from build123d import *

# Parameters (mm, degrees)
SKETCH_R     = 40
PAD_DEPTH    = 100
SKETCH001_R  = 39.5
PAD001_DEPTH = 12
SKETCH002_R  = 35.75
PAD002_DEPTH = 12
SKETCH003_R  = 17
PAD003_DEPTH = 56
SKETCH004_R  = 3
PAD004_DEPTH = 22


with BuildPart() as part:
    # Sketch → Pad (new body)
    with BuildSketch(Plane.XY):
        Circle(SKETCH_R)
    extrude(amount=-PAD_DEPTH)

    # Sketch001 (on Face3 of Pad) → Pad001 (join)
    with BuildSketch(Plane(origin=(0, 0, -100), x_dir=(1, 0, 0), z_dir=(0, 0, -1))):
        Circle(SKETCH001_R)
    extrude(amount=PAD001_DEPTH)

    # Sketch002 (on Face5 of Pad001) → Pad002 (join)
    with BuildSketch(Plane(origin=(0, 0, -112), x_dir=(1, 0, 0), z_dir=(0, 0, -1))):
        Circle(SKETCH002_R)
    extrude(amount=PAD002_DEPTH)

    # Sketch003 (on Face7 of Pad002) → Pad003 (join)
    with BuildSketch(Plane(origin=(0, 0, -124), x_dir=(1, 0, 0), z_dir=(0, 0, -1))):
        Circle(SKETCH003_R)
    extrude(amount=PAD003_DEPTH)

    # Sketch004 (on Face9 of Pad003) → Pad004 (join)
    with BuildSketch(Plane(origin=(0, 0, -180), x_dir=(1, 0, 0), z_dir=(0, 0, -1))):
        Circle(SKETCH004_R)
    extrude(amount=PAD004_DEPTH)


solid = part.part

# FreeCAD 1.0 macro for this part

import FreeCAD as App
import Part
import Sketcher

V = App.Vector

doc = App.newDocument("Part")
body = doc.addObject("PartDesign::Body", "Body")

sketch1 = body.newObject("Sketcher::SketchObject", "Sketch")
sketch1.AttachmentSupport = (doc.getObject("XY_Plane"), [""])
sketch1.MapMode = "FlatFace"
sketch1.addGeometry(Part.Circle(V(0, 0, 0), V(0, 0, 1), 40), False)
sketch1.addConstraint([
    Sketcher.Constraint("Coincident", 0, 3, -1, 1),
    Sketcher.Constraint("Diameter", 0, 80.0),
])
pad1 = body.newObject("PartDesign::Pad", "Pad")
pad1.Profile = sketch1
pad1.Length = 100
pad1.Reversed = True

sketch2 = body.newObject("Sketcher::SketchObject", "Sketch001")
sketch2.AttachmentSupport = (doc.getObject("XY_Plane"), [""])
sketch2.MapMode = "FlatFace"
sketch2.AttachmentOffset = App.Placement(V(0, 0, -100), App.Rotation())
sketch2.addGeometry(Part.Circle(V(0, 0, 0), V(0, 0, 1), 39.5), False)
sketch2.addConstraint([
    Sketcher.Constraint("Coincident", 0, 3, -1, 1),
    Sketcher.Constraint("Diameter", 0, 79.0),
])
pad2 = body.newObject("PartDesign::Pad", "Pad001")
pad2.Profile = sketch2
pad2.Length = 12
pad2.Reversed = True

sketch3 = body.newObject("Sketcher::SketchObject", "Sketch002")
sketch3.AttachmentSupport = (doc.getObject("XY_Plane"), [""])
sketch3.MapMode = "FlatFace"
sketch3.AttachmentOffset = App.Placement(V(0, 0, -112), App.Rotation())
sketch3.addGeometry(Part.Circle(V(0, 0, 0), V(0, 0, 1), 35.75), False)
sketch3.addConstraint([
    Sketcher.Constraint("Coincident", 0, 3, -1, 1),
    Sketcher.Constraint("Diameter", 0, 71.5),
])
pad3 = body.newObject("PartDesign::Pad", "Pad002")
pad3.Profile = sketch3
pad3.Length = 12
pad3.Reversed = True

sketch4 = body.newObject("Sketcher::SketchObject", "Sketch003")
sketch4.AttachmentSupport = (doc.getObject("XY_Plane"), [""])
sketch4.MapMode = "FlatFace"
sketch4.AttachmentOffset = App.Placement(V(0, 0, -124), App.Rotation())
sketch4.addGeometry(Part.Circle(V(0, 0, 0), V(0, 0, 1), 17), False)
sketch4.addConstraint([
    Sketcher.Constraint("Coincident", 0, 3, -1, 1),
    Sketcher.Constraint("Diameter", 0, 34.0),
])
pad4 = body.newObject("PartDesign::Pad", "Pad003")
pad4.Profile = sketch4
pad4.Length = 56
pad4.Reversed = True

sketch5 = body.newObject("Sketcher::SketchObject", "Sketch004")
sketch5.AttachmentSupport = (doc.getObject("XY_Plane"), [""])
sketch5.MapMode = "FlatFace"
sketch5.AttachmentOffset = App.Placement(V(0, 0, -180), App.Rotation())
sketch5.addGeometry(Part.Circle(V(0, 0, 0), V(0, 0, 1), 3), False)
sketch5.addConstraint([
    Sketcher.Constraint("Coincident", 0, 3, -1, 1),
    Sketcher.Constraint("Diameter", 0, 6.0),
])
pad5 = body.newObject("PartDesign::Pad", "Pad004")
pad5.Profile = sketch5
pad5.Length = 22
pad5.Reversed = True

doc.recompute()
